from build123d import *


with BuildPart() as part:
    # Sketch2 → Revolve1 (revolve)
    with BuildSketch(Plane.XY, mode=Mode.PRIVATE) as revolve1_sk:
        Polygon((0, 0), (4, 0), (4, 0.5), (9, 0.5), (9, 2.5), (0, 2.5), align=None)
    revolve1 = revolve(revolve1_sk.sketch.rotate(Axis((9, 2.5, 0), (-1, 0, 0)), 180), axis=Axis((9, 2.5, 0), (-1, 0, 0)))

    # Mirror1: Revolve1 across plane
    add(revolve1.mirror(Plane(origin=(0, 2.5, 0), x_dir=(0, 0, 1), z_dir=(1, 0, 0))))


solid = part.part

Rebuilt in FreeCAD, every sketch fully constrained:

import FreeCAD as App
import Part
import Sketcher

doc = App.newDocument("Part")
body = doc.addObject("PartDesign::Body", "Body")

# Sketch on XY plane
sketch1 = doc.addObject("Sketcher::SketchObject", "Sketch")
body.addObject(sketch1)
sketch1.AttachmentSupport = (doc.XY_Plane, [""])
sketch1.MapMode = "FlatFace"
sketch1.addGeometry(Part.LineSegment(App.Vector(0, 0, 0), App.Vector(4, 0, 0)), False)
sketch1.addGeometry(Part.LineSegment(App.Vector(4, 0, 0), App.Vector(4, 0.5, 0)), False)
sketch1.addGeometry(Part.LineSegment(App.Vector(4, 0.5, 0), App.Vector(9, 0.5, 0)), False)
sketch1.addGeometry(Part.LineSegment(App.Vector(9, 0.5, 0), App.Vector(9, 2.5, 0)), False)
sketch1.addGeometry(Part.LineSegment(App.Vector(9, 2.5, 0), App.Vector(0, 2.5, 0)), False)
sketch1.addGeometry(Part.LineSegment(App.Vector(0, 2.5, 0), App.Vector(0, 0, 0)), False)
sketch1.addGeometry(Part.LineSegment(App.Vector(9, 2.5, 0), App.Vector(0, 2.5, 0)), True)  # axis
sketch1.addConstraint(Sketcher.Constraint("Coincident", 0, 2, 1, 1))
sketch1.addConstraint(Sketcher.Constraint("Coincident", 1, 2, 2, 1))
sketch1.addConstraint(Sketcher.Constraint("Coincident", 2, 2, 3, 1))
sketch1.addConstraint(Sketcher.Constraint("Coincident", 3, 2, 4, 1))
sketch1.addConstraint(Sketcher.Constraint("Coincident", 4, 2, 5, 1))
sketch1.addConstraint(Sketcher.Constraint("Coincident", 5, 2, 0, 1))
sketch1.addConstraint(Sketcher.Constraint("Horizontal", 0))
sketch1.addConstraint(Sketcher.Constraint("Vertical", 1))
sketch1.addConstraint(Sketcher.Constraint("Horizontal", 2))
sketch1.addConstraint(Sketcher.Constraint("Vertical", 3))
sketch1.addConstraint(Sketcher.Constraint("Horizontal", 4))
sketch1.addConstraint(Sketcher.Constraint("Vertical", 5))
sketch1.addConstraint(Sketcher.Constraint("Horizontal", 6))
sketch1.addConstraint(Sketcher.Constraint("Coincident", 5, 2, -1, 1))
sketch1.addConstraint(Sketcher.Constraint("Coincident", 6, 1, 3, 2))
sketch1.addConstraint(Sketcher.Constraint("PointOnObject", 6, 2, -2))
sketch1.addConstraint(Sketcher.Constraint("DistanceX", 0, 1, 0, 2, 4.0))
sketch1.addConstraint(Sketcher.Constraint("DistanceX", 2, 1, 2, 2, 5.0))
sketch1.addConstraint(Sketcher.Constraint("DistanceY", 3, 1, 3, 2, 2.0))
sketch1.addConstraint(Sketcher.Constraint("DistanceY", 1, 1, 1, 2, 0.5))
revolution = doc.addObject("PartDesign::Revolution", "Revolution")
body.addObject(revolution)
revolution.Profile = sketch1
revolution.ReferenceAxis = (sketch1, ["Axis0"])
revolution.Angle = 360
doc.recompute()

mirrored = doc.addObject("PartDesign::Mirrored", "Mirrored")
body.addObject(mirrored)
mirrored.Originals = [revolution]
mirrored.MirrorPlane = (doc.YZ_Plane, [""])
body.Tip = mirrored

doc.recompute()
